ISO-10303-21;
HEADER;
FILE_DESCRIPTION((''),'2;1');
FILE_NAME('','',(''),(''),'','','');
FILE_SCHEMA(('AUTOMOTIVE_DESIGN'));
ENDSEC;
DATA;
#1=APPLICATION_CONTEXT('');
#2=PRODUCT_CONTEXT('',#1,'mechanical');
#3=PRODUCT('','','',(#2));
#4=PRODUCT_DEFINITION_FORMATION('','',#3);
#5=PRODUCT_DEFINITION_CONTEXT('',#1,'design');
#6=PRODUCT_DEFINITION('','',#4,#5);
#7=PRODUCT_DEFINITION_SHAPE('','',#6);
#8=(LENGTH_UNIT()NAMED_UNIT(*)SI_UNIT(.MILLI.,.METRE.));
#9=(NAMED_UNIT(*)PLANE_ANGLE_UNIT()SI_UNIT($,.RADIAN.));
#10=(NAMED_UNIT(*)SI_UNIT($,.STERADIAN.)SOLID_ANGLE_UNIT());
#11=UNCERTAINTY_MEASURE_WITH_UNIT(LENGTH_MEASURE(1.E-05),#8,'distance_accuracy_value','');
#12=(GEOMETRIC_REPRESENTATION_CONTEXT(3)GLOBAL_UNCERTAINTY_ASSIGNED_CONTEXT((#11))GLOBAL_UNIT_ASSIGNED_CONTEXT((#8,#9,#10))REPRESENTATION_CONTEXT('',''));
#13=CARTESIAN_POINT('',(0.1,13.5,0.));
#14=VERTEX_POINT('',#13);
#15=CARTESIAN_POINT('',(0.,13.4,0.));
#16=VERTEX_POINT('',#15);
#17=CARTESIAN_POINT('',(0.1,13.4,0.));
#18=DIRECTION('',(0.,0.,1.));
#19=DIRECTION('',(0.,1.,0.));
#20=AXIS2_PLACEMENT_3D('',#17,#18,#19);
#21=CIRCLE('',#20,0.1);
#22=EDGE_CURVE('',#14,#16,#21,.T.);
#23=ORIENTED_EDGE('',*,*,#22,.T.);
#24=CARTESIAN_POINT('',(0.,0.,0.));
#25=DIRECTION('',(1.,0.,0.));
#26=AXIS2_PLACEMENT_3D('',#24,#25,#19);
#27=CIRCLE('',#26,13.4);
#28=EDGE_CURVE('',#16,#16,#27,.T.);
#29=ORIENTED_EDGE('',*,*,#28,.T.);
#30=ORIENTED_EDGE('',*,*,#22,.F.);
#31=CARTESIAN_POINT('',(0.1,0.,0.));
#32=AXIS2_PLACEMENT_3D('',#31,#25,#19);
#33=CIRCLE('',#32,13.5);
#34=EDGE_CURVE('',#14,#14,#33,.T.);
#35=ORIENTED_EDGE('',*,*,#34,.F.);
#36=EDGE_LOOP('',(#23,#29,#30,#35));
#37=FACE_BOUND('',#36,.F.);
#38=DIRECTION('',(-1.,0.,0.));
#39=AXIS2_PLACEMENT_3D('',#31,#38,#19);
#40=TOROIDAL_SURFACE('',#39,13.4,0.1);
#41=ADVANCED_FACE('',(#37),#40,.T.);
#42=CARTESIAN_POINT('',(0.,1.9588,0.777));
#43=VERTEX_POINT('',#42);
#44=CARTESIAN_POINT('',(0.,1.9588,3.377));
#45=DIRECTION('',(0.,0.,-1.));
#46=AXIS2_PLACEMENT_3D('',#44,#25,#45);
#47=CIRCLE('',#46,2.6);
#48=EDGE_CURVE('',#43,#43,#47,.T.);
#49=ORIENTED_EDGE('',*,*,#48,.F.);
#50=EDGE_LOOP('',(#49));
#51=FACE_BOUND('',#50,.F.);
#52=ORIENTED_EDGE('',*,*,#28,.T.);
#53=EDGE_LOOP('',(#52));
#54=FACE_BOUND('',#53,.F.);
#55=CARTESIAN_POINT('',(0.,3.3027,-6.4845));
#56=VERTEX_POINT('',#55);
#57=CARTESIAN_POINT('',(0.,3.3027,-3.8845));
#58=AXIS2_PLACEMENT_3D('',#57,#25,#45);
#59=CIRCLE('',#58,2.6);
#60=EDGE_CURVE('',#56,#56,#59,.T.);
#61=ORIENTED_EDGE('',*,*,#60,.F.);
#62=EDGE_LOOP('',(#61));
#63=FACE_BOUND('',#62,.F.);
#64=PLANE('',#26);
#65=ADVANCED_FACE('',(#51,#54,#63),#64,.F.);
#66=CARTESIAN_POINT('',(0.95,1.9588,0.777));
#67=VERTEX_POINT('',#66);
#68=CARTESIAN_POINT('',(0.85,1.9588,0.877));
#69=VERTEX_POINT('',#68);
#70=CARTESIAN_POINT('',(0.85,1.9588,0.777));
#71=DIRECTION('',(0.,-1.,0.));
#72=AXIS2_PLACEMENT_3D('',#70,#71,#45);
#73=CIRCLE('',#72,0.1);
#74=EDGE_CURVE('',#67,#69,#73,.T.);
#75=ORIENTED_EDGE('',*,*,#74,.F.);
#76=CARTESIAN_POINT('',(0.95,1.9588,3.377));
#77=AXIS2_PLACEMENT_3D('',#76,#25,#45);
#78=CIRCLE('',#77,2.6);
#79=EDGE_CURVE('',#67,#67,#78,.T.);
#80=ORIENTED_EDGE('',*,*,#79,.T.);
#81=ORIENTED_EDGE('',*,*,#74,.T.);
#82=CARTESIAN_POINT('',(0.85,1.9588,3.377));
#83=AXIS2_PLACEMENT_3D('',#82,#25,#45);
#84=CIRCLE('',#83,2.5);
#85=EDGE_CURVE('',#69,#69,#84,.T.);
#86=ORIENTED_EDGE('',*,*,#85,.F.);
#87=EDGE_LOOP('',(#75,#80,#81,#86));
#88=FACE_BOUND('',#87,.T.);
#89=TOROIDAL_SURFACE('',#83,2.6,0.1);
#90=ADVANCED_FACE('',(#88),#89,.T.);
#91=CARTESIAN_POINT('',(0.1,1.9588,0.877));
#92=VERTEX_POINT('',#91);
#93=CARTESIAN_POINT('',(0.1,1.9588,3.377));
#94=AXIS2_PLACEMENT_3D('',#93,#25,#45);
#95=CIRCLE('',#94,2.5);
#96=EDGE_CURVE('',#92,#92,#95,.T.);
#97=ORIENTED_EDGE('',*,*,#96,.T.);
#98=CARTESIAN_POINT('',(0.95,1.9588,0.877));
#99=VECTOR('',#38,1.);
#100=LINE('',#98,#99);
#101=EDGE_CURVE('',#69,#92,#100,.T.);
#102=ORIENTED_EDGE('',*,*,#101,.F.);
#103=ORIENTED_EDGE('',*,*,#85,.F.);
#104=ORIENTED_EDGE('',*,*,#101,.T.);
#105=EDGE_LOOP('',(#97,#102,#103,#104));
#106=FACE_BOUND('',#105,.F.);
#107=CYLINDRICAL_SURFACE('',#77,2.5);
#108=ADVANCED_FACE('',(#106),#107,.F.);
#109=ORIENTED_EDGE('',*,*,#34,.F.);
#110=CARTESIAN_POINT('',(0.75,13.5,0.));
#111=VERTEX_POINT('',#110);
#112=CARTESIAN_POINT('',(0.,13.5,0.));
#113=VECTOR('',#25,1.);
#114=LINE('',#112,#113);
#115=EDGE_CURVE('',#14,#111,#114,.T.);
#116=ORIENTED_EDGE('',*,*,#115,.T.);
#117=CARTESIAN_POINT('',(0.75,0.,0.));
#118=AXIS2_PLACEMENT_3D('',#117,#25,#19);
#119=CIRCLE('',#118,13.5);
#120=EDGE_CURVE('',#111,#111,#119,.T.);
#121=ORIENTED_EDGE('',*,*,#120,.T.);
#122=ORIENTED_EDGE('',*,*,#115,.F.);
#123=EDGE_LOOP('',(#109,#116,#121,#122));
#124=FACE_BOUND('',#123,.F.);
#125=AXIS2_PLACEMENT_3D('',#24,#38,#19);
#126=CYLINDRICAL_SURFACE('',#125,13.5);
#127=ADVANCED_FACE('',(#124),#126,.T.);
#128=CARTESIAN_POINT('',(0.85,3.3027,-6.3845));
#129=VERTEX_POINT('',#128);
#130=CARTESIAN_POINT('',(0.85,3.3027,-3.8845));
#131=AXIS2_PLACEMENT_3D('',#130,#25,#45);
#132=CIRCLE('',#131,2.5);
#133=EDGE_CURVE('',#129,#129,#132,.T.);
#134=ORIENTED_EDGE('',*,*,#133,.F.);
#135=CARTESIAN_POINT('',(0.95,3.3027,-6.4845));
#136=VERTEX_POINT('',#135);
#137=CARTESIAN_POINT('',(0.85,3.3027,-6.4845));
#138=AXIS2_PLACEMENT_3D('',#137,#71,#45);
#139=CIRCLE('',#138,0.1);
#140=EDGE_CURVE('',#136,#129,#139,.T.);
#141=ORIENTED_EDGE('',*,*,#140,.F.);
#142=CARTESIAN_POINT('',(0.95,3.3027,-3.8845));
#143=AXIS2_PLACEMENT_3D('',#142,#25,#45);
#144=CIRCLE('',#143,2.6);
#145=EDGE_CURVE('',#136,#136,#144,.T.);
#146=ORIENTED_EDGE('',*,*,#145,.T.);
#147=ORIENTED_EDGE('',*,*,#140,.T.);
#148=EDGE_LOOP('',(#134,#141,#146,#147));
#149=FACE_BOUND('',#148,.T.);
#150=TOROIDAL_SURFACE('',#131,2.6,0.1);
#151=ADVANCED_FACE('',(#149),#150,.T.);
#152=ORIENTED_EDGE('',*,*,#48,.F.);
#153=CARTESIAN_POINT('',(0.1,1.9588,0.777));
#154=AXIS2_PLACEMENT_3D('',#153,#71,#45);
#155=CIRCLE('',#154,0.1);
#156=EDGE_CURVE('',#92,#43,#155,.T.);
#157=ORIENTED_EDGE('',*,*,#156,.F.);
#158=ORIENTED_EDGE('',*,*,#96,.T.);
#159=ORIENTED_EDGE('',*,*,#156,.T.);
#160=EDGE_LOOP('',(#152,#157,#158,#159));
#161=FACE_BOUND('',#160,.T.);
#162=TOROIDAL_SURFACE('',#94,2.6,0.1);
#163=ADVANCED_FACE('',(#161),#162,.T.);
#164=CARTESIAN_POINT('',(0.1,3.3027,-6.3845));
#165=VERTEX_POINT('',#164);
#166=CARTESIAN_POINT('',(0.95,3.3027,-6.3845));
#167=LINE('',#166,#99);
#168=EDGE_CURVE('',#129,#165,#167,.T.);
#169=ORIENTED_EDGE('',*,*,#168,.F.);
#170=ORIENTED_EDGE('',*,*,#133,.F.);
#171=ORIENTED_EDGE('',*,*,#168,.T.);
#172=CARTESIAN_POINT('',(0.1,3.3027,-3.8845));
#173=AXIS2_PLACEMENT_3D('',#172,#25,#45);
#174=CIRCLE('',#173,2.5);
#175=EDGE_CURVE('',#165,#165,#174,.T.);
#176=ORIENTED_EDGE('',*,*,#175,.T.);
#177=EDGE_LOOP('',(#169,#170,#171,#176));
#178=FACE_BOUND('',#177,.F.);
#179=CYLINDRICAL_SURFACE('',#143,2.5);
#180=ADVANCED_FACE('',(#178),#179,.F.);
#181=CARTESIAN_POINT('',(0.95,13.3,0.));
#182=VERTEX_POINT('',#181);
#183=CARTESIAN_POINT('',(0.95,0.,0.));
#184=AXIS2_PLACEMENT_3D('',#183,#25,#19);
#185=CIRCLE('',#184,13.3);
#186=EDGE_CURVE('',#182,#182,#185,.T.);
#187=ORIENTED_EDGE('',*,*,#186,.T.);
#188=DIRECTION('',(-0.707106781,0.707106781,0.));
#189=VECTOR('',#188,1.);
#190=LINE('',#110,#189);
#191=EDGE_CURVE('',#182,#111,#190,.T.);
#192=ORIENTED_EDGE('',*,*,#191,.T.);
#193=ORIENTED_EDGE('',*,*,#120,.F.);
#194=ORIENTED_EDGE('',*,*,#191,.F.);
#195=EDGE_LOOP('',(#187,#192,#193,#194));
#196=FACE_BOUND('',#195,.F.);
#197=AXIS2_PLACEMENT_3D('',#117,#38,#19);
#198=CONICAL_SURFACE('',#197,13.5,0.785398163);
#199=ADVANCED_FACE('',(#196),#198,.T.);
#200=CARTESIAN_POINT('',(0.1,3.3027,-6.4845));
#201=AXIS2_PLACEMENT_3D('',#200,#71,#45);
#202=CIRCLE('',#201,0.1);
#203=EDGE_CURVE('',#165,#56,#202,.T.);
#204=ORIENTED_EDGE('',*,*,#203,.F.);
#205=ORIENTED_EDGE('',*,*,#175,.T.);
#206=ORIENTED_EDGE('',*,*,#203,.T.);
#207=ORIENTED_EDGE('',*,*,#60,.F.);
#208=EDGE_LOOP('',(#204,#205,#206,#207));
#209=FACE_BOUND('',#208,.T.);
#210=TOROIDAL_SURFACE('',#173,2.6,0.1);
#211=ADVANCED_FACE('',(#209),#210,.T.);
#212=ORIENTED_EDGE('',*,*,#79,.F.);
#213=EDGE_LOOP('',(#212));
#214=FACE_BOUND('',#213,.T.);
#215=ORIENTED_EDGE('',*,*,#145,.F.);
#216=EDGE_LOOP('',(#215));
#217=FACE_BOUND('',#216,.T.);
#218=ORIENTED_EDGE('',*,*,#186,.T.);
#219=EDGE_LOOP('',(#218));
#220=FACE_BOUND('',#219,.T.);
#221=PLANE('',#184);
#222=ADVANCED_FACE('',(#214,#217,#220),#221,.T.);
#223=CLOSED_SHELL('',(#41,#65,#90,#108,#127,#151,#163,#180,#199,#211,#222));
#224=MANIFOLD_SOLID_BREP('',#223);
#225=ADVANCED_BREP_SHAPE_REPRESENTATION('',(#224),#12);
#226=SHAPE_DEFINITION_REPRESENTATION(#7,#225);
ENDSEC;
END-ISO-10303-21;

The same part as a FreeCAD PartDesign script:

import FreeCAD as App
import Part
import Sketcher


def edges_at(feature, points):
    """Names of the edges that pass closest to the given points."""
    edges = feature.Shape.Edges
    near = lambda p: min(range(len(edges)), key=lambda i: edges[i].distToShape(Part.Vertex(*p))[0])
    return sorted({f"Edge{near(p) + 1}" for p in points})

doc = App.newDocument("Part")
body = doc.addObject("PartDesign::Body", "Body")

# Sketch on YZ plane
sketch1 = body.newObject("Sketcher::SketchObject", "Sketch")
sketch1.AttachmentSupport = (doc.getObject("YZ_Plane"), [""])
sketch1.MapMode = "FlatFace"
sketch1.addGeometry([
    Part.Circle(App.Vector(0, 0, 0), App.Vector(0, 0, 1), 13.5),
    Part.Circle(App.Vector(1.9588, 3.377, 0), App.Vector(0, 0, 1), 2.2698),
    Part.Circle(App.Vector(3.3027, -3.8845, 0), App.Vector(0, 0, 1), 2.2698),
], False)
sketch1.addConstraint([
    Sketcher.Constraint("Coincident", 0, 3, -1, 1),
    Sketcher.Constraint("Equal", 1, 2),
    Sketcher.Constraint("Diameter", 0, 27.0),
    Sketcher.Constraint("Diameter", 1, 4.5396),
    Sketcher.Constraint("DistanceY", -1, 1, 1, 3, 3.377),
    Sketcher.Constraint("DistanceX", -1, 1, 1, 3, 1.9588),
    Sketcher.Constraint("DistanceX", -1, 1, 2, 3, 3.3027),
    Sketcher.Constraint("DistanceY", 2, 3, -1, 1, 3.8845),
])
pad1 = body.newObject("PartDesign::Pad", "Pad")
pad1.Profile = sketch1
pad1.Length = 0.95

# Sketch on YZ plane
sketch2 = body.newObject("Sketcher::SketchObject", "Sketch001")
sketch2.AttachmentSupport = (doc.getObject("YZ_Plane"), [""])
sketch2.MapMode = "FlatFace"
sketch2.AttachmentOffset = App.Placement(App.Vector(0, 0, 0.95), App.Rotation())
sketch2.addGeometry([
    Part.Circle(App.Vector(1.9588, 3.377, 0), App.Vector(0, 0, 1), 2.5),
    Part.Circle(App.Vector(3.3027, -3.8845, 0), App.Vector(0, 0, 1), 2.5),
], False)
sketch2.addConstraint([
    Sketcher.Constraint("Equal", 0, 1),
    Sketcher.Constraint("Diameter", 0, 5.0),
    Sketcher.Constraint("DistanceY", -1, 1, 0, 3, 3.377),
    Sketcher.Constraint("DistanceX", 0, 3, 1, 3, 1.344),
    Sketcher.Constraint("DistanceX", -1, 1, 0, 3, 1.9588),
    Sketcher.Constraint("DistanceY", 1, 3, -1, 1, 3.8845),
])
pocket1 = body.newObject("PartDesign::Pocket", "Pocket")
pocket1.Profile = sketch2
pocket1.Length = 0.95
doc.recompute()

fillet = body.newObject("PartDesign::Fillet", "Fillet")
fillet.Base = (pocket1, edges_at(pocket1, [
    (0.95, 1.959, 5.877),
    (0.95, 3.303, -1.385),
    (0, 3.303, -1.385),
    (0, 1.959, 5.877),
    (0, -13.5, 0),
]))
fillet.Radius = 0.1
doc.recompute()

chamfer = body.newObject("PartDesign::Chamfer", "Chamfer")
chamfer.Base = (fillet, edges_at(fillet, [(0.95, -13.5, 0)]))
chamfer.Size = 0.2

doc.recompute()
